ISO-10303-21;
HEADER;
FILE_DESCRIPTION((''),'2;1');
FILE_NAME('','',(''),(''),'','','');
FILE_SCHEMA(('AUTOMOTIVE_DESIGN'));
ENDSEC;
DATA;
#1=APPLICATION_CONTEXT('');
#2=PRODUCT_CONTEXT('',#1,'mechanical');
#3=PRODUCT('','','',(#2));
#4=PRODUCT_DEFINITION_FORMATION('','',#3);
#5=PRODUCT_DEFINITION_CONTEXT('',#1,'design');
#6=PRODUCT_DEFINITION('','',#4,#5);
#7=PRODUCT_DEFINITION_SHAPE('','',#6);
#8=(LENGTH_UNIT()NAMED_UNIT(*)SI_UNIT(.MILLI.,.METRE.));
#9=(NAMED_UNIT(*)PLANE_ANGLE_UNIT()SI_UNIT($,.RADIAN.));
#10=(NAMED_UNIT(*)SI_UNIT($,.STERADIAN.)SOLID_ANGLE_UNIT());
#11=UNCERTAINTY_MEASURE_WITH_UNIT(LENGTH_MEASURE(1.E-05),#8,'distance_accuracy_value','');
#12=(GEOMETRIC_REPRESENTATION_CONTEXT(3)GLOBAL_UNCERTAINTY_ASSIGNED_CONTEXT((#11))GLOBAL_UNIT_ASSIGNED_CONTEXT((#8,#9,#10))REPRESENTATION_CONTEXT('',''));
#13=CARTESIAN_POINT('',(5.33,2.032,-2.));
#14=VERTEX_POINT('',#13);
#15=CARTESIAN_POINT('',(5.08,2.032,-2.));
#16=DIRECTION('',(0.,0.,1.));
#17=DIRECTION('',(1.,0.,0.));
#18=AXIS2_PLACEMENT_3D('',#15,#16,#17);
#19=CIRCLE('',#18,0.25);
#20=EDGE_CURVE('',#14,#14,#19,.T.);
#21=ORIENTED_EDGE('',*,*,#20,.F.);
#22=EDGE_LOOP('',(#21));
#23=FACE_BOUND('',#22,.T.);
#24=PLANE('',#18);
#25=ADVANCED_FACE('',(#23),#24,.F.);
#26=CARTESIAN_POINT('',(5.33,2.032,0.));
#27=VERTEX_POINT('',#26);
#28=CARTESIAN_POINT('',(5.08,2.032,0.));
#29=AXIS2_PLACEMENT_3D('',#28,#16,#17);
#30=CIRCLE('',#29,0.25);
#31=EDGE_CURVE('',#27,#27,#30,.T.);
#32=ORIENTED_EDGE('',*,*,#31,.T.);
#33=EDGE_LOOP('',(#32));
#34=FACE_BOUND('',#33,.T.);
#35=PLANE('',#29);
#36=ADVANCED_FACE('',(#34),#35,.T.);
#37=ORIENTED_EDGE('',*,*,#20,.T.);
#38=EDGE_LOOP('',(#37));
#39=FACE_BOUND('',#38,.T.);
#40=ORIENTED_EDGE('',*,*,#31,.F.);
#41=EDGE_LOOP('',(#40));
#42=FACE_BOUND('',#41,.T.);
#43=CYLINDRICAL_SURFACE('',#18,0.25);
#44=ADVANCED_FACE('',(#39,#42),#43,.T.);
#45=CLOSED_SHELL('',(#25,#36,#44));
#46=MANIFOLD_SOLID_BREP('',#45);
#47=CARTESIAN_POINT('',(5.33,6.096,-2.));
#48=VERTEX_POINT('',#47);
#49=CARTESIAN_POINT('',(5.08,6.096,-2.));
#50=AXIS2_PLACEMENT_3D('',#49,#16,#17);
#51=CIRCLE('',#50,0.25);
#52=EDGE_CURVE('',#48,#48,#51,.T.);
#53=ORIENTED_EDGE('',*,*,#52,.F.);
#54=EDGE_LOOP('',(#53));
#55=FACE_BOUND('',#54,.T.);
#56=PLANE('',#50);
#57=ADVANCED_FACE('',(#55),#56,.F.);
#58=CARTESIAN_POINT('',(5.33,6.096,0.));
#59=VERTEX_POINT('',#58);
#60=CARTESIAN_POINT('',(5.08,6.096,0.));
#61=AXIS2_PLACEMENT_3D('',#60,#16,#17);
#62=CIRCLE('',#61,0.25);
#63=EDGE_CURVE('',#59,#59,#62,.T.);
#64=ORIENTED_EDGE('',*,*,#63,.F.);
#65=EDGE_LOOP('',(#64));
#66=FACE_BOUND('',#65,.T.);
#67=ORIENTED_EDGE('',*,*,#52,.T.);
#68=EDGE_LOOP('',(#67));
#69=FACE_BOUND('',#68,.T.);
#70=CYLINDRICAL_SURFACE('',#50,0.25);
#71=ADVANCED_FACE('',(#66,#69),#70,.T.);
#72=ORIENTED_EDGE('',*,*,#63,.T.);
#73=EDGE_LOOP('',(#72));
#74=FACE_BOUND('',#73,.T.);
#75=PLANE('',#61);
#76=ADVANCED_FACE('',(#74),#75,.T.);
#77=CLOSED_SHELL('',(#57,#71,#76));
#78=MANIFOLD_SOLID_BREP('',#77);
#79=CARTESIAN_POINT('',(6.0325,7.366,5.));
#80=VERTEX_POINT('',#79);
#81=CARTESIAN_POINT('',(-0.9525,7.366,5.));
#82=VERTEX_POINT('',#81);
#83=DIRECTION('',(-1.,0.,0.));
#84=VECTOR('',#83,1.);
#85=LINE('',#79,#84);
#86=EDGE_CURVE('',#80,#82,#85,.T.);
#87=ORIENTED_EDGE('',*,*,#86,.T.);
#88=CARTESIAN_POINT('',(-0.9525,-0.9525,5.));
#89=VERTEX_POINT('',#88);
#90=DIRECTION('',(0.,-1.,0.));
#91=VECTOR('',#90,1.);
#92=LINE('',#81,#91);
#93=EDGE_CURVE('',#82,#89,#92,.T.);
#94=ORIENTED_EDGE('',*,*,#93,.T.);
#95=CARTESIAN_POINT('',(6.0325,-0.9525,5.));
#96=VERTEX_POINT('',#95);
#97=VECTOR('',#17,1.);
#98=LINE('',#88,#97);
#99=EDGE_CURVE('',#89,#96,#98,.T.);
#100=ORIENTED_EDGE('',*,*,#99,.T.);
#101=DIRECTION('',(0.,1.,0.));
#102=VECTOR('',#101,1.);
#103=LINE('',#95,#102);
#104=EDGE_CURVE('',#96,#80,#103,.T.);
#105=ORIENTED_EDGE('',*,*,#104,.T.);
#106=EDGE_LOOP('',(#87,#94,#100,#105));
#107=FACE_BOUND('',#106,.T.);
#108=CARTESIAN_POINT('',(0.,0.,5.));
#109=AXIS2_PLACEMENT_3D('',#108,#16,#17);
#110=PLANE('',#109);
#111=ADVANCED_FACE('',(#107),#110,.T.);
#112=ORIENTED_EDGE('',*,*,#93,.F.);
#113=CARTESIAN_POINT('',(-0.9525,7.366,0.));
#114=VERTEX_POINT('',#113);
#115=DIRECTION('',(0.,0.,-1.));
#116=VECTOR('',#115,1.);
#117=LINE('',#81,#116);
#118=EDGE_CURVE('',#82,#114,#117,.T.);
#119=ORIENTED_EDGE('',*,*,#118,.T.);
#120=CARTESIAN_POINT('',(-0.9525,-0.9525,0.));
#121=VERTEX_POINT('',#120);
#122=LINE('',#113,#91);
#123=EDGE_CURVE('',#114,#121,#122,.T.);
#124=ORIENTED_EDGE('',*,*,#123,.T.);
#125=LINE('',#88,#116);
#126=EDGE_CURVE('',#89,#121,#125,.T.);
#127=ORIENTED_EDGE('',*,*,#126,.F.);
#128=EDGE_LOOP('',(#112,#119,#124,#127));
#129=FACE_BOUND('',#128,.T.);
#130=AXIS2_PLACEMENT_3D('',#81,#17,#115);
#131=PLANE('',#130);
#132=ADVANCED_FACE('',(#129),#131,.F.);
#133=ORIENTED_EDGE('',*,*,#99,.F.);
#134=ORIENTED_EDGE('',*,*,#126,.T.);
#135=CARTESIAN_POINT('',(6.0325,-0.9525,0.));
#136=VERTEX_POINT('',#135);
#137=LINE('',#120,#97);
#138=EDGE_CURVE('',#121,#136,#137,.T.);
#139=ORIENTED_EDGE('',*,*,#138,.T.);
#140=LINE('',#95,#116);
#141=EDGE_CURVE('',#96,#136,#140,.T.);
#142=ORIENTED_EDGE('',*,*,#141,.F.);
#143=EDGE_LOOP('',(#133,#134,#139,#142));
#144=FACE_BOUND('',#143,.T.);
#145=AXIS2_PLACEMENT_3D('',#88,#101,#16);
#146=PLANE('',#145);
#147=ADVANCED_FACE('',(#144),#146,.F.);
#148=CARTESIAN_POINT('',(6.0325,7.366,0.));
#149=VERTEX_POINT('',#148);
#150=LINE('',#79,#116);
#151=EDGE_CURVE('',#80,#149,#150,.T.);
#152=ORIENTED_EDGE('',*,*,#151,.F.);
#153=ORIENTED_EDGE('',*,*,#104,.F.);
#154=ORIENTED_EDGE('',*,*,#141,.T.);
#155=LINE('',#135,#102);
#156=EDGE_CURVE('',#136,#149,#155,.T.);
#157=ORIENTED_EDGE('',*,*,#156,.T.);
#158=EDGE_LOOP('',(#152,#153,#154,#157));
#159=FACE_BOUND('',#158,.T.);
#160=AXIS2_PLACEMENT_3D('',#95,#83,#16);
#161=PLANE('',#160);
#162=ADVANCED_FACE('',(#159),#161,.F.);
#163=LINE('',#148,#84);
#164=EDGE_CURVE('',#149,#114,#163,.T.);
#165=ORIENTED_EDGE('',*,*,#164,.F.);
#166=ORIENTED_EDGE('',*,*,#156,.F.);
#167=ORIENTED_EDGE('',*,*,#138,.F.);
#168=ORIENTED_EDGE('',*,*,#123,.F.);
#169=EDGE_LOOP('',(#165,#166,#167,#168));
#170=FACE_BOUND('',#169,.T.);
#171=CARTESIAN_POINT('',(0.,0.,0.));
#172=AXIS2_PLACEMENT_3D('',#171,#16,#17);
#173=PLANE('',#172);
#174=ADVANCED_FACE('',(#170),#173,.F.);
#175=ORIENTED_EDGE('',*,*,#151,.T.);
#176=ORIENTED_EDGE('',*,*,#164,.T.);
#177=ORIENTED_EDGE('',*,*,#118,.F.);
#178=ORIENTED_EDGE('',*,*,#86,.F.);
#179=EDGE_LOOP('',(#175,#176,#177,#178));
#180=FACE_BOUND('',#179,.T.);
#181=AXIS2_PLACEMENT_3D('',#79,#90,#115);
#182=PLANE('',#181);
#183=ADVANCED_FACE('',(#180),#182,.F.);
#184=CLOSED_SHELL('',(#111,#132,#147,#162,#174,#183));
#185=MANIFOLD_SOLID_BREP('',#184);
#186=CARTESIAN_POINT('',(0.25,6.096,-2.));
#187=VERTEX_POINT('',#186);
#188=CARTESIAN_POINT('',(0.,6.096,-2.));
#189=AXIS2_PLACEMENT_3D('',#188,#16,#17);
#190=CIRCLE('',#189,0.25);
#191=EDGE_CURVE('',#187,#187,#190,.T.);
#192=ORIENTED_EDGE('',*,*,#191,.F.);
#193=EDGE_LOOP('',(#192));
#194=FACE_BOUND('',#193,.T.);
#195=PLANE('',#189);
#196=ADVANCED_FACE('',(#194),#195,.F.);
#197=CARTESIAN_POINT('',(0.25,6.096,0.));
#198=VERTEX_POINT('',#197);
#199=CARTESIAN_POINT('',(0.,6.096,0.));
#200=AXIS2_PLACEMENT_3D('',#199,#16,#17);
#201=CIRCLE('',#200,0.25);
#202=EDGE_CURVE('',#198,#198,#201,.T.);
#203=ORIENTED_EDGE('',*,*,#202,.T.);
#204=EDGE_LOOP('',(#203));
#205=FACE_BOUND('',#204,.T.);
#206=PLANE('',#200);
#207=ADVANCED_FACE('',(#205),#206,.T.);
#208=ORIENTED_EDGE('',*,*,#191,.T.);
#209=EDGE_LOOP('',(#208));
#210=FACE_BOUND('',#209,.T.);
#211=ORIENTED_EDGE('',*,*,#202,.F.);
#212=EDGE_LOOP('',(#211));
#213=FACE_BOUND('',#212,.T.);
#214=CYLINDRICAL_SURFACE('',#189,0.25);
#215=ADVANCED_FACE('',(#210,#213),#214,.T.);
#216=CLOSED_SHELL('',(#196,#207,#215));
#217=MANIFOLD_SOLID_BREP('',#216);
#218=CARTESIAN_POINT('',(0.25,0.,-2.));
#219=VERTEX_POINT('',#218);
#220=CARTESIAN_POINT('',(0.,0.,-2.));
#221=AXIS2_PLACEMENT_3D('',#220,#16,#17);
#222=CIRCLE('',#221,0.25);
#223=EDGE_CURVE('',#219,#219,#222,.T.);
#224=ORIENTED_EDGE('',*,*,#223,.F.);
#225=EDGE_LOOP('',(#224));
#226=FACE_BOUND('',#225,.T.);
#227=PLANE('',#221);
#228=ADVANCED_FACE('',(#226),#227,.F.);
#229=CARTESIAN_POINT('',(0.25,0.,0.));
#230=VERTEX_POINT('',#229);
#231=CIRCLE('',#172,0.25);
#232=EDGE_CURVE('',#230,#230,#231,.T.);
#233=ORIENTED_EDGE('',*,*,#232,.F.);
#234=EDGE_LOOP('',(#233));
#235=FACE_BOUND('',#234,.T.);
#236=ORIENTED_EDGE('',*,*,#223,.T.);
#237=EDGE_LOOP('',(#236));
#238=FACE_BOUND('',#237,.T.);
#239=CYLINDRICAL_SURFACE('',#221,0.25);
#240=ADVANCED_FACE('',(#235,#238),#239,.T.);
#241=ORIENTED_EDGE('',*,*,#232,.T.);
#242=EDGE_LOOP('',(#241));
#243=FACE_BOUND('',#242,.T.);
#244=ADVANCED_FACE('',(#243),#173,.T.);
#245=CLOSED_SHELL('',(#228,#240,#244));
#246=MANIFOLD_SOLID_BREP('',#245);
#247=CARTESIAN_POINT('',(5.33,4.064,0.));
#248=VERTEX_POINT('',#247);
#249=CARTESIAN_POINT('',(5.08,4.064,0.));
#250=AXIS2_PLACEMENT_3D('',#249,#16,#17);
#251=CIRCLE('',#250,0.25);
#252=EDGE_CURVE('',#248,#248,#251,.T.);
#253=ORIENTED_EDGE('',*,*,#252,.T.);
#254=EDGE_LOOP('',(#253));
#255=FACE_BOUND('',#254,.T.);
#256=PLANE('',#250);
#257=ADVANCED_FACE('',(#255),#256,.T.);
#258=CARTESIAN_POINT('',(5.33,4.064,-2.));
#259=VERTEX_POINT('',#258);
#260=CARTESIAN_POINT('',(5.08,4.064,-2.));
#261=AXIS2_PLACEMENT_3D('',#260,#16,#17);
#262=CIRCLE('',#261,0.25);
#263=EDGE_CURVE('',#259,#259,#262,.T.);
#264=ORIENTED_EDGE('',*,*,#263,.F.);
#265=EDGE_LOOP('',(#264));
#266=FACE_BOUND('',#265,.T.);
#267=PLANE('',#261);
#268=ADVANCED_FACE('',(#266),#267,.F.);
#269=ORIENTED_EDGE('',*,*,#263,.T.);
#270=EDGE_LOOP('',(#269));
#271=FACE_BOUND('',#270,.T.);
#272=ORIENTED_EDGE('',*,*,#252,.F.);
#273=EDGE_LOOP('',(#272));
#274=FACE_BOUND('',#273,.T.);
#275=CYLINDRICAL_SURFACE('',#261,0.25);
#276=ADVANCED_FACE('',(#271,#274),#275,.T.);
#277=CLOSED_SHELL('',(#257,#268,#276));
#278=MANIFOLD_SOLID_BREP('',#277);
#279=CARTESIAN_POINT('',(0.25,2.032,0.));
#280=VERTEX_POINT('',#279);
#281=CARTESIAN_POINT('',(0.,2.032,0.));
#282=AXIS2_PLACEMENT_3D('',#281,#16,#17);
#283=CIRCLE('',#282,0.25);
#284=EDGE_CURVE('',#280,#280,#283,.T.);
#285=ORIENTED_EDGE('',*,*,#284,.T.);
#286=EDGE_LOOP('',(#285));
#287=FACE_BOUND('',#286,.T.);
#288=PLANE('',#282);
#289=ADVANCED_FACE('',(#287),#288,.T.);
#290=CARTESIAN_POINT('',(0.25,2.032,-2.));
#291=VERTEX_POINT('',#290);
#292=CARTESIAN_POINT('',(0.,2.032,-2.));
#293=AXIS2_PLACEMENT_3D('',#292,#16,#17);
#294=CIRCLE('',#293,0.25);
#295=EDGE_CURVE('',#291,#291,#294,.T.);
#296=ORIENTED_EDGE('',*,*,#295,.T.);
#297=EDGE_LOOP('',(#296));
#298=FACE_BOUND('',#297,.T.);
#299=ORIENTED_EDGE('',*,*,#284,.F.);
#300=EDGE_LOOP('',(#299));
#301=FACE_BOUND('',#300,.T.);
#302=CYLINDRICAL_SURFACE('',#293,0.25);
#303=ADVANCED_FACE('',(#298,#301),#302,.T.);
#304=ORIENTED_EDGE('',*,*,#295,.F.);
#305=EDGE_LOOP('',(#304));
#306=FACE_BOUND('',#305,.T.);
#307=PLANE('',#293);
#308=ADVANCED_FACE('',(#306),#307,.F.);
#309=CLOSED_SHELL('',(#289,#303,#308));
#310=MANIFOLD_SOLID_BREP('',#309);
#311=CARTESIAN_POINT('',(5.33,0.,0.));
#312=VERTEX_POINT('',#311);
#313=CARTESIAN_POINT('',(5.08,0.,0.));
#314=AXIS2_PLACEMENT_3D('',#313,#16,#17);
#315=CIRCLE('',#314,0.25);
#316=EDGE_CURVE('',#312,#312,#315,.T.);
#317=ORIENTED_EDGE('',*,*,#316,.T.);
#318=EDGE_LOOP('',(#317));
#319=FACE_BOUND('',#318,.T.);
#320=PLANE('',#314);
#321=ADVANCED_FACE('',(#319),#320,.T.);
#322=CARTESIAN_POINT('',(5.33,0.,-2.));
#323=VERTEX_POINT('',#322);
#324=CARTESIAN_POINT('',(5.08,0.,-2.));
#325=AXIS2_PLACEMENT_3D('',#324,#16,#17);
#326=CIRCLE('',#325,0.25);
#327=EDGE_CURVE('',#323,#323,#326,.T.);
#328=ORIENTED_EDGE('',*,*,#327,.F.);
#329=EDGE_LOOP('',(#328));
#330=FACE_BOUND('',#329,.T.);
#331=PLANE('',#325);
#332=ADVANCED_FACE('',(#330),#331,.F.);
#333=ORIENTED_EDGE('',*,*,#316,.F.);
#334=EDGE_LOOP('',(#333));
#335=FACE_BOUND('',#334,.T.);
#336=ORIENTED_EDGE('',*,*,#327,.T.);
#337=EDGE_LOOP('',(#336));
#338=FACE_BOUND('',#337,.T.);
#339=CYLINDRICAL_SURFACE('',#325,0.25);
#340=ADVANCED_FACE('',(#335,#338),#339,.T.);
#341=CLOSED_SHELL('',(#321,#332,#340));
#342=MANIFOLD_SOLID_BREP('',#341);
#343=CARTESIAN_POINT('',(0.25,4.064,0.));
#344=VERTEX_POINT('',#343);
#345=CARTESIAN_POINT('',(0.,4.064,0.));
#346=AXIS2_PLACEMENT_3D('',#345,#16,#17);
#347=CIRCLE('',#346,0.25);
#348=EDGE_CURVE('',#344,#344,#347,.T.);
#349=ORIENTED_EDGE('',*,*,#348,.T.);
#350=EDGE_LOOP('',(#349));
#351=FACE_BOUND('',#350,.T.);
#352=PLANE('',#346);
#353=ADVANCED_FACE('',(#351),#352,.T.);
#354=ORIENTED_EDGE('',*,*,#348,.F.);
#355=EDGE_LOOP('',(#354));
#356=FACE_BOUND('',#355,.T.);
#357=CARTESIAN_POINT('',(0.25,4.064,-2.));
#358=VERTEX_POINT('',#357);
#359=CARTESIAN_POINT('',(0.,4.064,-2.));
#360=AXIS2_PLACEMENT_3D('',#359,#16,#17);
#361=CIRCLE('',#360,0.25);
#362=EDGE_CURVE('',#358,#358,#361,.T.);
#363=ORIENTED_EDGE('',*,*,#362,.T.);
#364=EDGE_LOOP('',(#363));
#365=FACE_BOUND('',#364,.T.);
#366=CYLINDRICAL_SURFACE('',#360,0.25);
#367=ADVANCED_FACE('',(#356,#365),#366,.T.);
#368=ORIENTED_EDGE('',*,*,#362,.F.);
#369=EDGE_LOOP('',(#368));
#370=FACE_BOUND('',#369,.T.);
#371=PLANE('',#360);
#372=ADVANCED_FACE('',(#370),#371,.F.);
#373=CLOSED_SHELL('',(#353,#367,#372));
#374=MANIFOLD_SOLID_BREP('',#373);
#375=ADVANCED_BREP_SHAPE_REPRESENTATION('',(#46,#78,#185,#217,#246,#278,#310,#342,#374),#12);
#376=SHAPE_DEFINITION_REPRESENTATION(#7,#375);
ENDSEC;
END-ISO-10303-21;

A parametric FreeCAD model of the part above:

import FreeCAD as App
import Part
import Sketcher
from FreeCAD import Vector


def add_polygon(sketch, points):
    """Adds a closed chain of lines whose ends are joined by coincident constraints."""
    first, n = sketch.GeometryCount, len(points)
    for a, b in zip(points, points[1:] + points[:1]):
        sketch.addGeometry(Part.LineSegment(App.Vector(*a, 0), App.Vector(*b, 0)), False)
    for i in range(n):
        sketch.addConstraint(Sketcher.Constraint("Coincident", first + i, 2, first + (i + 1) % n, 1))

doc = App.newDocument("Part")
body = doc.addObject("PartDesign::Body", "Body")

# Sketch on XY plane
sketch1 = body.newObject("Sketcher::SketchObject", "Sketch")
sketch1.AttachmentSupport = (doc.getObject("XY_Plane"), [""])
sketch1.MapMode = "FlatFace"
add_polygon(sketch1, [(-1, 7), (-1, -1), (6, -1), (6, 7)])  # lines 0-3
sketch1.addConstraint(Sketcher.Constraint("Vertical", 0))
sketch1.addConstraint(Sketcher.Constraint("Horizontal", 1))
sketch1.addConstraint(Sketcher.Constraint("Vertical", 2))
sketch1.addConstraint(Sketcher.Constraint("Horizontal", 3))
sketch1.addConstraint(Sketcher.Constraint("DistanceX", 1, 1, 1, 2, 6.985))
sketch1.addConstraint(Sketcher.Constraint("DistanceY", 0, 2, 0, 1, 8.3185))
sketch1.addConstraint(Sketcher.Constraint("DistanceY", -1, 1, 2, 2, 7.366))
sketch1.addConstraint(Sketcher.Constraint("DistanceX", 0, 2, -1, 1, 0.9525))
pad1 = body.newObject("PartDesign::Pad", "Pad")
pad1.Profile = sketch1
pad1.Length = 5
body2 = doc.addObject("PartDesign::Body", "Body001")

# Sketch on XY plane
sketch2 = body2.newObject("Sketcher::SketchObject", "Sketch001")
sketch2.AttachmentSupport = (doc.getObject("XY_Plane001"), [""])
sketch2.MapMode = "FlatFace"
sketch2.addGeometry(Part.Circle(Vector(5.08, 0, 0), Vector(0, 0, 1), 0.25), False)
sketch2.addConstraint(Sketcher.Constraint("PointOnObject", 0, 3, -1))
sketch2.addConstraint(Sketcher.Constraint("Diameter", 0, 0.5))
sketch2.addConstraint(Sketcher.Constraint("DistanceX", -1, 1, 0, 3, 5.08))
pad2 = body2.newObject("PartDesign::Pad", "Pad001")
pad2.Profile = sketch2
pad2.Length = 2
pad2.Reversed = True
body3 = doc.addObject("PartDesign::Body", "Body002")

# Sketch on XY plane
sketch3 = body3.newObject("Sketcher::SketchObject", "Sketch002")
sketch3.AttachmentSupport = (doc.getObject("XY_Plane002"), [""])
sketch3.MapMode = "FlatFace"
sketch3.addGeometry(Part.Circle(Vector(5.08, 2.03, 0), Vector(0, 0, 1), 0.25), False)
sketch3.addConstraint(Sketcher.Constraint("Diameter", 0, 0.5))
sketch3.addConstraint(Sketcher.Constraint("DistanceX", -1, 1, 0, 3, 5.08))
sketch3.addConstraint(Sketcher.Constraint("DistanceY", -1, 1, 0, 3, 2.032))
pad3 = body3.newObject("PartDesign::Pad", "Pad002")
pad3.Profile = sketch3
pad3.Length = 2
pad3.Reversed = True
body4 = doc.addObject("PartDesign::Body", "Body003")

# Sketch on XY plane
sketch4 = body4.newObject("Sketcher::SketchObject", "Sketch003")
sketch4.AttachmentSupport = (doc.getObject("XY_Plane003"), [""])
sketch4.MapMode = "FlatFace"
sketch4.addGeometry(Part.Circle(Vector(5.08, 4.06, 0), Vector(0, 0, 1), 0.25), False)
sketch4.addConstraint(Sketcher.Constraint("Diameter", 0, 0.5))
sketch4.addConstraint(Sketcher.Constraint("DistanceX", -1, 1, 0, 3, 5.08))
sketch4.addConstraint(Sketcher.Constraint("DistanceY", -1, 1, 0, 3, 4.064))
pad4 = body4.newObject("PartDesign::Pad", "Pad003")
pad4.Profile = sketch4
pad4.Length = 2
pad4.Reversed = True
body5 = doc.addObject("PartDesign::Body", "Body004")

# Sketch on XY plane
sketch5 = body5.newObject("Sketcher::SketchObject", "Sketch004")
sketch5.AttachmentSupport = (doc.getObject("XY_Plane004"), [""])
sketch5.MapMode = "FlatFace"
sketch5.addGeometry(Part.Circle(Vector(5.08, 6.1, 0), Vector(0, 0, 1), 0.25), False)
sketch5.addConstraint(Sketcher.Constraint("Diameter", 0, 0.5))
sketch5.addConstraint(Sketcher.Constraint("DistanceX", -1, 1, 0, 3, 5.08))
sketch5.addConstraint(Sketcher.Constraint("DistanceY", -1, 1, 0, 3, 6.096))
pad5 = body5.newObject("PartDesign::Pad", "Pad004")
pad5.Profile = sketch5
pad5.Length = 2
pad5.Reversed = True
body6 = doc.addObject("PartDesign::Body", "Body005")

# Sketch on XY plane
sketch6 = body6.newObject("Sketcher::SketchObject", "Sketch005")
sketch6.AttachmentSupport = (doc.getObject("XY_Plane005"), [""])
sketch6.MapMode = "FlatFace"
sketch6.addGeometry(Part.Circle(Vector(0, 0, 0), Vector(0, 0, 1), 0.25), False)
sketch6.addConstraint(Sketcher.Constraint("Coincident", 0, 3, -1, 1))
sketch6.addConstraint(Sketcher.Constraint("Diameter", 0, 0.5))
pad6 = body6.newObject("PartDesign::Pad", "Pad005")
pad6.Profile = sketch6
pad6.Length = 2
pad6.Reversed = True
body7 = doc.addObject("PartDesign::Body", "Body006")

# Sketch on XY plane
sketch7 = body7.newObject("Sketcher::SketchObject", "Sketch006")
sketch7.AttachmentSupport = (doc.getObject("XY_Plane006"), [""])
sketch7.MapMode = "FlatFace"
sketch7.addGeometry(Part.Circle(Vector(0, 2.03, 0), Vector(0, 0, 1), 0.25), False)
sketch7.addConstraint(Sketcher.Constraint("PointOnObject", 0, 3, -2))
sketch7.addConstraint(Sketcher.Constraint("Diameter", 0, 0.5))
sketch7.addConstraint(Sketcher.Constraint("DistanceY", -1, 1, 0, 3, 2.032))
pad7 = body7.newObject("PartDesign::Pad", "Pad006")
pad7.Profile = sketch7
pad7.Length = 2
pad7.Reversed = True
body8 = doc.addObject("PartDesign::Body", "Body007")

# Sketch on XY plane
sketch8 = body8.newObject("Sketcher::SketchObject", "Sketch007")
sketch8.AttachmentSupport = (doc.getObject("XY_Plane007"), [""])
sketch8.MapMode = "FlatFace"
sketch8.addGeometry(Part.Circle(Vector(0, 4.06, 0), Vector(0, 0, 1), 0.25), False)
sketch8.addConstraint(Sketcher.Constraint("PointOnObject", 0, 3, -2))
sketch8.addConstraint(Sketcher.Constraint("Diameter", 0, 0.5))
sketch8.addConstraint(Sketcher.Constraint("DistanceY", -1, 1, 0, 3, 4.064))
pad8 = body8.newObject("PartDesign::Pad", "Pad007")
pad8.Profile = sketch8
pad8.Length = 2
pad8.Reversed = True
body9 = doc.addObject("PartDesign::Body", "Body008")

# Sketch on XY plane
sketch9 = body9.newObject("Sketcher::SketchObject", "Sketch008")
sketch9.AttachmentSupport = (doc.getObject("XY_Plane008"), [""])
sketch9.MapMode = "FlatFace"
sketch9.addGeometry(Part.Circle(Vector(0, 6.1, 0), Vector(0, 0, 1), 0.25), False)
sketch9.addConstraint(Sketcher.Constraint("PointOnObject", 0, 3, -2))
sketch9.addConstraint(Sketcher.Constraint("Diameter", 0, 0.5))
sketch9.addConstraint(Sketcher.Constraint("DistanceY", -1, 1, 0, 3, 6.096))
pad9 = body9.newObject("PartDesign::Pad", "Pad008")
pad9.Profile = sketch9
pad9.Length = 2
pad9.Reversed = True

doc.recompute()
